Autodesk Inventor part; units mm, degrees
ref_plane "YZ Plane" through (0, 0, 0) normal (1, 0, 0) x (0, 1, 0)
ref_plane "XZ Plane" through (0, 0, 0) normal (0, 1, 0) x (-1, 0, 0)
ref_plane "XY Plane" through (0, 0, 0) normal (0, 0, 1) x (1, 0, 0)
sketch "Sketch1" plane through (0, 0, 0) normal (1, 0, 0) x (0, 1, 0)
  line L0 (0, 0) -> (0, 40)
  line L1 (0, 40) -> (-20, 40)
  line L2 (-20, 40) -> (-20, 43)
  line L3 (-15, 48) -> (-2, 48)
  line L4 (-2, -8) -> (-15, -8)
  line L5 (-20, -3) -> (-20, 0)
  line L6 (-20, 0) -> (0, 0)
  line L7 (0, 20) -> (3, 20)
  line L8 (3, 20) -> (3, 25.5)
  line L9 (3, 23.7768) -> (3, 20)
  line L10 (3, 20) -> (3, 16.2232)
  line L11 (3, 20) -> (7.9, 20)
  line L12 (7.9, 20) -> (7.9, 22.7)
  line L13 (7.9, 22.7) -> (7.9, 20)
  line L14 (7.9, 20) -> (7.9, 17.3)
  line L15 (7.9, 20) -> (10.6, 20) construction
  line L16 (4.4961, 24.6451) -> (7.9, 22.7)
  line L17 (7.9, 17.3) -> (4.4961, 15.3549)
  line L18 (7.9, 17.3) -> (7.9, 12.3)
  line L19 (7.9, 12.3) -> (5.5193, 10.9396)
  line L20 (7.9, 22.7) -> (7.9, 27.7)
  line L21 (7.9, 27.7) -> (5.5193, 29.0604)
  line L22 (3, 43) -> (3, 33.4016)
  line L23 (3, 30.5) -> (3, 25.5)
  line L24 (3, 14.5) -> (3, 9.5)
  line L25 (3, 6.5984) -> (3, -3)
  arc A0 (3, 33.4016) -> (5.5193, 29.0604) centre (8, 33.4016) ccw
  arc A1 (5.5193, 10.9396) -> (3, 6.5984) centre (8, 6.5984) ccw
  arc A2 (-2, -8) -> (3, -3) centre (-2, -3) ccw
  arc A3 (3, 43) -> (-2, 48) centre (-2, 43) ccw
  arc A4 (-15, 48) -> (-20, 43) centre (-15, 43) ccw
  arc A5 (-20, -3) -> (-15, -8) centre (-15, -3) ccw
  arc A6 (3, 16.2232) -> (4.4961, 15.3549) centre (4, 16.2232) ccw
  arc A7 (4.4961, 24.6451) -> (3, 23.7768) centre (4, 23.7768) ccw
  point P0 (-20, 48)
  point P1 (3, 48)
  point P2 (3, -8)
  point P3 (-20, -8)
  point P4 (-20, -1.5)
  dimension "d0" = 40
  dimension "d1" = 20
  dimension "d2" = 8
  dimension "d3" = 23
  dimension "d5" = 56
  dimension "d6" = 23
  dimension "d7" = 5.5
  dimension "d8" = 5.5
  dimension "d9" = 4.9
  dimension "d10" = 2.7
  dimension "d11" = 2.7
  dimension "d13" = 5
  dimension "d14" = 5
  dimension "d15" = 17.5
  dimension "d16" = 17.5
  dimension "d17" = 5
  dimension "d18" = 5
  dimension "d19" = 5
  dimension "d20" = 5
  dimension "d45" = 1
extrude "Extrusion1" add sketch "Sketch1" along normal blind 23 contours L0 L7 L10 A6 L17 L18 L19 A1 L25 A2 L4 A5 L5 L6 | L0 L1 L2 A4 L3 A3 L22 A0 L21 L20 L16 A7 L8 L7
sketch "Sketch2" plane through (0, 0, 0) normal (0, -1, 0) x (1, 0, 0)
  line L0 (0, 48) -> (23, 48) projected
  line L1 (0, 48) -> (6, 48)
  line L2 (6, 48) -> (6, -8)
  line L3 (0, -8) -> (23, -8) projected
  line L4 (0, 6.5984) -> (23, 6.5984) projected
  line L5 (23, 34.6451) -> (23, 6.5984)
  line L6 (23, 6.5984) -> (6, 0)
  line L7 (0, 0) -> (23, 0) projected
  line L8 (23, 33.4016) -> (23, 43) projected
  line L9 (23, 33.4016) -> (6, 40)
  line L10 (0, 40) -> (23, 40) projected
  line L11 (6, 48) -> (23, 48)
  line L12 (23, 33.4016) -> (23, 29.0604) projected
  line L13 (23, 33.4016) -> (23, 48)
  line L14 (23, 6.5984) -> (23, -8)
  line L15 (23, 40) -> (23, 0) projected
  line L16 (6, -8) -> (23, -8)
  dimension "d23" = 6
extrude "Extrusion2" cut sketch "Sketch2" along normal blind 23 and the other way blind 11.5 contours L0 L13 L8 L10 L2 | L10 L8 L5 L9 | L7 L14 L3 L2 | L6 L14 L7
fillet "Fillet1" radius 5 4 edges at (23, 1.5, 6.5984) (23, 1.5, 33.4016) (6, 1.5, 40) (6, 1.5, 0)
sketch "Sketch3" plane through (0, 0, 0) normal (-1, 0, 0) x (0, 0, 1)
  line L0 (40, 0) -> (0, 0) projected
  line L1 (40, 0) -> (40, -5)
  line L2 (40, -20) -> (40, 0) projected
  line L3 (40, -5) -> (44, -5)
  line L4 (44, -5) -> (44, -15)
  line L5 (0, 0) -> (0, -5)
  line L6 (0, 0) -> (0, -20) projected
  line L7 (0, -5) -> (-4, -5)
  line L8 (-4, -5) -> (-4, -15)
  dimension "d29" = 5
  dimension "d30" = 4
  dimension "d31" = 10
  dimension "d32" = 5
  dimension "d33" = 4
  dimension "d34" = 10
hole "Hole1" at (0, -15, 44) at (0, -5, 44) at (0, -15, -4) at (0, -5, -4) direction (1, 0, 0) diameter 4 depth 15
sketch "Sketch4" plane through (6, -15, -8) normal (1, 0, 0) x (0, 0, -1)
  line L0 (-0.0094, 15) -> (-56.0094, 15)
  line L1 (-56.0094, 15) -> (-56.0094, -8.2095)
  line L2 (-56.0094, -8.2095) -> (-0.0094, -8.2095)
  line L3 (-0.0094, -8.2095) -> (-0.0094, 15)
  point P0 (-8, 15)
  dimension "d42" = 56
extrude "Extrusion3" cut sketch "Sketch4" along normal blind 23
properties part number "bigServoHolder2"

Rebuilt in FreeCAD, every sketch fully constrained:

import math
import FreeCAD as App
import Part
import Sketcher
from FreeCAD import Vector
Q = App.Units.Quantity


def edges_at(feature, points):
    """Names of the edges that pass closest to the given points."""
    edges = feature.Shape.Edges
    near = lambda p: min(range(len(edges)), key=lambda i: edges[i].distToShape(Part.Vertex(*p))[0])
    return sorted({f"Edge{near(p) + 1}" for p in points})

doc = App.newDocument("Part")
body = doc.addObject("PartDesign::Body", "Body")

# Sketch on YZ plane
sketch1 = doc.addObject("Sketcher::SketchObject", "Sketch")
body.addObject(sketch1)
sketch1.AttachmentSupport = (doc.YZ_Plane, [""])
sketch1.MapMode = "FlatFace"
sketch1.addGeometry([
    Part.LineSegment(Vector(0, 0, 0), Vector(-20, 0, 0)),  # 0
    Part.LineSegment(Vector(-20, 0, 0), Vector(-20, -3, 0)),  # 1
    Part.ArcOfCircle(Part.Circle(Vector(-15, -3, 0), Vector(0, 0, 1), 5), math.radians(180), math.radians(270)),  # 2
    Part.LineSegment(Vector(-15, -8, 0), Vector(-2, -8, 0)),  # 3
    Part.ArcOfCircle(Part.Circle(Vector(-2, -3, 0), Vector(0, 0, 1), 5), math.radians(-90), math.radians(0)),  # 4
    Part.LineSegment(Vector(3, -3, 0), Vector(3, 6.6, 0)),  # 5
    Part.ArcOfCircle(Part.Circle(Vector(8, 6.6, 0), Vector(0, 0, 1), 5), math.radians(120), math.radians(180)),  # 6
    Part.LineSegment(Vector(5.5, 10.9, 0), Vector(7.9, 12.3, 0)),  # 7
    Part.LineSegment(Vector(7.9, 12.3, 0), Vector(7.9, 17.3, 0)),  # 8
    Part.LineSegment(Vector(7.9, 17.3, 0), Vector(4.5, 15.4, 0)),  # 9
    Part.ArcOfCircle(Part.Circle(Vector(4, 16.2, 0), Vector(0, 0, 1), 1), math.radians(180), math.radians(300)),  # 10
    Part.LineSegment(Vector(3, 16.2, 0), Vector(3, 23.8, 0)),  # 11
    Part.ArcOfCircle(Part.Circle(Vector(4, 23.8, 0), Vector(0, 0, 1), 1), math.radians(60), math.radians(180)),  # 12
    Part.LineSegment(Vector(4.5, 24.6, 0), Vector(7.9, 22.7, 0)),  # 13
    Part.LineSegment(Vector(7.9, 22.7, 0), Vector(7.9, 27.7, 0)),  # 14
    Part.LineSegment(Vector(7.9, 27.7, 0), Vector(5.5, 29.1, 0)),  # 15
    Part.ArcOfCircle(Part.Circle(Vector(8, 33.4, 0), Vector(0, 0, 1), 5), math.radians(180), math.radians(240)),  # 16
    Part.LineSegment(Vector(3, 33.4, 0), Vector(3, 43, 0)),  # 17
    Part.ArcOfCircle(Part.Circle(Vector(-2, 43, 0), Vector(0, 0, 1), 5), math.radians(0), math.radians(90)),  # 18
    Part.LineSegment(Vector(-2, 48, 0), Vector(-15, 48, 0)),  # 19
    Part.ArcOfCircle(Part.Circle(Vector(-15, 43, 0), Vector(0, 0, 1), 5), math.radians(90), math.radians(180)),  # 20
    Part.LineSegment(Vector(-20, 43, 0), Vector(-20, 40, 0)),  # 21
    Part.LineSegment(Vector(-20, 40, 0), Vector(0, 40, 0)),  # 22
    Part.LineSegment(Vector(0, 40, 0), Vector(0, 0, 0)),  # 23
], False)
sketch1.addConstraint([
    Sketcher.Constraint("Coincident", 0, 2, 1, 1),
    Sketcher.Constraint("Tangent", 1, 2, 2, 1),
    Sketcher.Constraint("Tangent", 2, 2, 3, 1),
    Sketcher.Constraint("Tangent", 3, 2, 4, 1),
    Sketcher.Constraint("Tangent", 4, 2, 5, 1),
    Sketcher.Constraint("Tangent", 5, 2, 6, 2),
    Sketcher.Constraint("Tangent", 6, 1, 7, 1),
    Sketcher.Constraint("Coincident", 7, 2, 8, 1),
    Sketcher.Constraint("Coincident", 8, 2, 9, 1),
    Sketcher.Constraint("Tangent", 9, 2, 10, 2),
    Sketcher.Constraint("Tangent", 10, 1, 11, 1),
    Sketcher.Constraint("Tangent", 11, 2, 12, 2),
    Sketcher.Constraint("Tangent", 12, 1, 13, 1),
    Sketcher.Constraint("Coincident", 13, 2, 14, 1),
    Sketcher.Constraint("Coincident", 14, 2, 15, 1),
    Sketcher.Constraint("Tangent", 15, 2, 16, 2),
    Sketcher.Constraint("Tangent", 16, 1, 17, 1),
    Sketcher.Constraint("Tangent", 17, 2, 18, 1),
    Sketcher.Constraint("Tangent", 18, 2, 19, 1),
    Sketcher.Constraint("Tangent", 19, 2, 20, 1),
    Sketcher.Constraint("Tangent", 20, 2, 21, 1),
    Sketcher.Constraint("Coincident", 21, 2, 22, 1),
    Sketcher.Constraint("Coincident", 22, 2, 23, 1),
    Sketcher.Constraint("Coincident", 23, 2, 0, 1),
    Sketcher.Constraint("Horizontal", 0),
    Sketcher.Constraint("Vertical", 1),
    Sketcher.Constraint("Horizontal", 3),
    Sketcher.Constraint("Vertical", 5),
    Sketcher.Constraint("Vertical", 8),
    Sketcher.Constraint("Vertical", 11),
    Sketcher.Constraint("Vertical", 14),
    Sketcher.Constraint("Vertical", 17),
    Sketcher.Constraint("Horizontal", 19),
    Sketcher.Constraint("Vertical", 21),
    Sketcher.Constraint("Horizontal", 22),
    Sketcher.Constraint("Vertical", 23),
    Sketcher.Constraint("Coincident", 23, 2, -1, 1),
    Sketcher.Constraint("Equal", 2, 4),
    Sketcher.Constraint("Equal", 4, 6),
    Sketcher.Constraint("Equal", 10, 12),
    Sketcher.Constraint("Equal", 6, 16),
    Sketcher.Constraint("Equal", 16, 18),
    Sketcher.Constraint("Equal", 18, 20),
    Sketcher.Constraint("Parallel", 7, 9),
    Sketcher.Constraint("Parallel", 13, 15),
    Sketcher.Constraint("Vertical", 6, 3, 16, 3),
    Sketcher.Constraint("Vertical", 2, 3, 20, 3),
    Sketcher.Constraint("Vertical", 5, 2, 10, 1),
    Sketcher.Constraint("Vertical", 9, 2, 12, 1),
    Sketcher.Constraint("Vertical", 8, 2, 13, 2),
    Sketcher.Constraint("Equal", 8, 14),
    Sketcher.Constraint("Equal", 5, 17),
    Sketcher.Constraint("Equal", 1, 21),
    Sketcher.Constraint("Radius", 2, Q("5 mm")),
    Sketcher.Constraint("Radius", 10, Q("1 mm")),
    Sketcher.Constraint("DistanceX", 0, 2, 0, 1, Q("20 mm")),
    Sketcher.Constraint("DistanceY", 8, 1, 8, 2, Q("5 mm")),
    Sketcher.Constraint("DistanceY", 23, 2, 23, 1, Q("40 mm")),
    Sketcher.Constraint("DistanceX", -1, 1, 6, 3, Q("8 mm")),
    Sketcher.Constraint("DistanceY", 2, 2, -1, 1, Q("8 mm")),
    Sketcher.Constraint("DistanceX", 5, 2, 7, 2, Q("4.9 mm")),
    Sketcher.Constraint("DistanceY", -1, 1, 7, 2, Q("12.3 mm")),
    Sketcher.Constraint("Distance", 7, Q("2.742 mm")),
])
pad1 = doc.addObject("PartDesign::Pad", "Pad")
body.addObject(pad1)
pad1.Profile = sketch1
pad1.Length = 23

# Sketch on XZ plane
sketch2 = doc.addObject("Sketcher::SketchObject", "Sketch001")
body.addObject(sketch2)
sketch2.AttachmentSupport = (doc.XZ_Plane, [""])
sketch2.MapMode = "FlatFace"
sketch2.addGeometry([
    Part.LineSegment(Vector(23, 48, 0), Vector(6, 48, 0)),  # 0
    Part.LineSegment(Vector(6, 48, 0), Vector(6, 40, 0)),  # 1
    Part.LineSegment(Vector(6, 40, 0), Vector(23, 33, 0)),  # 2
    Part.LineSegment(Vector(23, 33, 0), Vector(23, 48, 0)),  # 3
    Part.LineSegment(Vector(23, -8, 0), Vector(23, 7, 0)),  # 4
    Part.LineSegment(Vector(23, 7, 0), Vector(6, 0, 0)),  # 5
    Part.LineSegment(Vector(6, 0, 0), Vector(6, -8, 0)),  # 6
    Part.LineSegment(Vector(6, -8, 0), Vector(23, -8, 0)),  # 7
], False)
sketch2.addConstraint([
    Sketcher.Constraint("Coincident", 0, 2, 1, 1),
    Sketcher.Constraint("Coincident", 1, 2, 2, 1),
    Sketcher.Constraint("Coincident", 2, 2, 3, 1),
    Sketcher.Constraint("Coincident", 3, 2, 0, 1),
    Sketcher.Constraint("Coincident", 4, 2, 5, 1),
    Sketcher.Constraint("Coincident", 5, 2, 6, 1),
    Sketcher.Constraint("Coincident", 6, 2, 7, 1),
    Sketcher.Constraint("Coincident", 7, 2, 4, 1),
    Sketcher.Constraint("Horizontal", 0),
    Sketcher.Constraint("Vertical", 1),
    Sketcher.Constraint("Vertical", 3),
    Sketcher.Constraint("Vertical", 4),
    Sketcher.Constraint("Vertical", 6),
    Sketcher.Constraint("Horizontal", 7),
    Sketcher.Constraint("PointOnObject", 5, 2, -1),
    Sketcher.Constraint("Vertical", 3, 2, 4, 2),
    Sketcher.Constraint("Vertical", 1, 2, 5, 2),
    Sketcher.Constraint("Equal", 3, 4),
    Sketcher.Constraint("Equal", 1, 6),
    Sketcher.Constraint("DistanceX", -1, 1, 0, 2, Q("6 mm")),
    Sketcher.Constraint("DistanceX", 0, 2, 0, 1, Q("17 mm")),
    Sketcher.Constraint("DistanceY", 1, 2, 1, 1, Q("8 mm")),
    Sketcher.Constraint("DistanceY", -1, 1, 0, 2, Q("48 mm")),
    Sketcher.Constraint("DistanceY", 3, 1, 3, 2, Q("14.5984 mm")),
])
pocket1 = doc.addObject("PartDesign::Pocket", "Pocket")
body.addObject(pocket1)
pocket1.Profile = sketch2
pocket1.Type = "ThroughAll"
pocket1.Midplane = True
doc.recompute()

fillet = doc.addObject("PartDesign::Fillet", "Fillet")
body.addObject(fillet)
fillet.Base = (pocket1, edges_at(pocket1, [
    (23, 1.5, 6.598),
    (23, 1.5, 33.402),
    (6, 1.5, 40),
    (6, 1.5, 0),
]))
fillet.Radius = 5

# Sketch on YZ plane
sketch3 = doc.addObject("Sketcher::SketchObject", "Sketch002")
body.addObject(sketch3)
sketch3.AttachmentSupport = (doc.YZ_Plane, [""])
sketch3.MapMode = "FlatFace"
sketch3.addGeometry([
    Part.Circle(Vector(-15, 44, 0), Vector(0, 0, 1), 2),
    Part.Circle(Vector(-5, 44, 0), Vector(0, 0, 1), 2),
    Part.Circle(Vector(-15, -4, 0), Vector(0, 0, 1), 2),
    Part.Circle(Vector(-5, -4, 0), Vector(0, 0, 1), 2),
], False)
sketch3.addConstraint([
    Sketcher.Constraint("Equal", 0, 1),
    Sketcher.Constraint("Equal", 1, 2),
    Sketcher.Constraint("Equal", 2, 3),
    Sketcher.Constraint("Horizontal", 0, 3, 1, 3),
    Sketcher.Constraint("Horizontal", 2, 3, 3, 3),
    Sketcher.Constraint("Vertical", 0, 3, 2, 3),
    Sketcher.Constraint("Vertical", 1, 3, 3, 3),
    Sketcher.Constraint("Diameter", 0, Q("4 mm")),
    Sketcher.Constraint("DistanceX", 0, 3, -1, 1, Q("15 mm")),
    Sketcher.Constraint("DistanceY", -1, 1, 0, 3, Q("44 mm")),
    Sketcher.Constraint("DistanceX", 1, 3, -1, 1, Q("5 mm")),
    Sketcher.Constraint("DistanceY", 2, 3, -1, 1, Q("4 mm")),
])
doc.recompute()
hole = doc.addObject("PartDesign::Hole", "Hole")
body.addObject(hole)
hole.Profile = sketch3
hole.ThreadType = "None"
hole.Diameter = 4
hole.DepthType = "Dimension"
hole.Depth = 15
hole.DrillPoint = "Flat"
hole.Reversed = True

# Sketch on YZ plane
sketch4 = doc.addObject("Sketcher::SketchObject", "Sketch003")
body.addObject(sketch4)
sketch4.AttachmentSupport = (doc.YZ_Plane, [""])
sketch4.MapMode = "FlatFace"
sketch4.AttachmentOffset = App.Placement(Vector(0, 0, 6), App.Rotation())
sketch4.addGeometry([
    Part.LineSegment(Vector(-23, -8, 0), Vector(0, -8, 0)),
    Part.LineSegment(Vector(0, -8, 0), Vector(0, 48, 0)),
    Part.LineSegment(Vector(0, 48, 0), Vector(-23, 48, 0)),
    Part.LineSegment(Vector(-23, 48, 0), Vector(-23, -8, 0)),
], False)
sketch4.addConstraint([
    Sketcher.Constraint("Coincident", 0, 2, 1, 1),
    Sketcher.Constraint("Coincident", 1, 2, 2, 1),
    Sketcher.Constraint("Coincident", 2, 2, 3, 1),
    Sketcher.Constraint("Coincident", 3, 2, 0, 1),
    Sketcher.Constraint("Horizontal", 0),
    Sketcher.Constraint("Vertical", 1),
    Sketcher.Constraint("Horizontal", 2),
    Sketcher.Constraint("Vertical", 3),
    Sketcher.Constraint("PointOnObject", 0, 2, -2),
    Sketcher.Constraint("DistanceY", 1, 1, 1, 2, Q("56 mm")),
    Sketcher.Constraint("DistanceX", 0, 1, 0, 2, Q("23.2095 mm")),
    Sketcher.Constraint("DistanceY", 0, 2, -1, 1, Q("7.9906 mm")),
])
pocket2 = doc.addObject("PartDesign::Pocket", "Pocket001")
body.addObject(pocket2)
pocket2.Profile = sketch4
pocket2.Length = 23
pocket2.Reversed = True

doc.recompute()
